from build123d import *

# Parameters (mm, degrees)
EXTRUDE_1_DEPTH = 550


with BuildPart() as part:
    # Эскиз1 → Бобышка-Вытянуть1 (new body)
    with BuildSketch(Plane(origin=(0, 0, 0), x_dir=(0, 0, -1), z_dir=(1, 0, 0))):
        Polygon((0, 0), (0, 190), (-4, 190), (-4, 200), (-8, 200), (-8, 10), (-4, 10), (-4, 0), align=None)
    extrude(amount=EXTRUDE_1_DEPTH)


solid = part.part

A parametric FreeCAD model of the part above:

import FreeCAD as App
import Part
import Sketcher

V = App.Vector
Q = App.Units.Quantity

doc = App.newDocument("Part")
params = doc.addObject("Spreadsheet::Sheet", "Params")
for row, (alias, value) in enumerate([
    ("sketch1_width", "190 mm"),
    ("sketch1_width2", "10 mm"),
    ("sketch1_height", "4 mm"),
    ("pad1_length", "550 mm"),
], start=1):
    params.set(f"A{row}", alias)
    params.set(f"B{row}", "=" + value)
    params.setAlias(f"B{row}", alias)

body = doc.addObject("PartDesign::Body", "Body")

sketch1 = body.newObject("Sketcher::SketchObject", "Sketch")
sketch1.AttachmentSupport = (doc.getObject("YZ_Plane"), [""])
sketch1.MapMode = "FlatFace"
sketch1.addGeometry(Part.LineSegment(V(0, 0, 0), V(190, 0, 0)), False)
sketch1.addGeometry(Part.LineSegment(V(190, 0, 0), V(190, 4, 0)), False)
sketch1.addGeometry(Part.LineSegment(V(190, 4, 0), V(200, 4, 0)), False)
sketch1.addGeometry(Part.LineSegment(V(200, 4, 0), V(200, 8, 0)), False)
sketch1.addGeometry(Part.LineSegment(V(200, 8, 0), V(10, 8, 0)), False)
sketch1.addGeometry(Part.LineSegment(V(10, 8, 0), V(10, 4, 0)), False)
sketch1.addGeometry(Part.LineSegment(V(10, 4, 0), V(0, 4, 0)), False)
sketch1.addGeometry(Part.LineSegment(V(0, 4, 0), V(0, 0, 0)), False)
sketch1.addConstraint(Sketcher.Constraint("Coincident", 0, 2, 1, 1))
sketch1.addConstraint(Sketcher.Constraint("Coincident", 1, 2, 2, 1))
sketch1.addConstraint(Sketcher.Constraint("Coincident", 2, 2, 3, 1))
sketch1.addConstraint(Sketcher.Constraint("Coincident", 3, 2, 4, 1))
sketch1.addConstraint(Sketcher.Constraint("Coincident", 4, 2, 5, 1))
sketch1.addConstraint(Sketcher.Constraint("Coincident", 5, 2, 6, 1))
sketch1.addConstraint(Sketcher.Constraint("Coincident", 6, 2, 7, 1))
sketch1.addConstraint(Sketcher.Constraint("Coincident", 7, 2, 0, 1))
sketch1.addConstraint(Sketcher.Constraint("Horizontal", 0))
sketch1.addConstraint(Sketcher.Constraint("Vertical", 1))
sketch1.addConstraint(Sketcher.Constraint("Horizontal", 2))
sketch1.addConstraint(Sketcher.Constraint("Vertical", 3))
sketch1.addConstraint(Sketcher.Constraint("Horizontal", 4))
sketch1.addConstraint(Sketcher.Constraint("Vertical", 5))
sketch1.addConstraint(Sketcher.Constraint("Horizontal", 6))
sketch1.addConstraint(Sketcher.Constraint("Vertical", 7))
sketch1.addConstraint(Sketcher.Constraint("Coincident", 7, 2, -1, 1))
sketch1.addConstraint(Sketcher.Constraint("Horizontal", 2, 2, 5, 2))
sketch1.addConstraint(Sketcher.Constraint("Equal", 0, 4))
sketch1.addConstraint(Sketcher.Constraint("Equal", 1, 3))
sketch1.addConstraint(Sketcher.Constraint("DistanceX", 0, 1, 0, 2, Q("190 mm")))
sketch1.addConstraint(Sketcher.Constraint("DistanceX", 2, 1, 2, 2, Q("10 mm")))
sketch1.addConstraint(Sketcher.Constraint("DistanceY", 1, 1, 1, 2, Q("4 mm")))
sketch1.setExpression("Constraints[20]", "Params.sketch1_width")
sketch1.setExpression("Constraints[21]", "Params.sketch1_width2")
sketch1.setExpression("Constraints[22]", "Params.sketch1_height")
pad1 = body.newObject("PartDesign::Pad", "Pad")
pad1.Profile = sketch1
pad1.setExpression("Length", "Params.pad1_length")

doc.recompute()
